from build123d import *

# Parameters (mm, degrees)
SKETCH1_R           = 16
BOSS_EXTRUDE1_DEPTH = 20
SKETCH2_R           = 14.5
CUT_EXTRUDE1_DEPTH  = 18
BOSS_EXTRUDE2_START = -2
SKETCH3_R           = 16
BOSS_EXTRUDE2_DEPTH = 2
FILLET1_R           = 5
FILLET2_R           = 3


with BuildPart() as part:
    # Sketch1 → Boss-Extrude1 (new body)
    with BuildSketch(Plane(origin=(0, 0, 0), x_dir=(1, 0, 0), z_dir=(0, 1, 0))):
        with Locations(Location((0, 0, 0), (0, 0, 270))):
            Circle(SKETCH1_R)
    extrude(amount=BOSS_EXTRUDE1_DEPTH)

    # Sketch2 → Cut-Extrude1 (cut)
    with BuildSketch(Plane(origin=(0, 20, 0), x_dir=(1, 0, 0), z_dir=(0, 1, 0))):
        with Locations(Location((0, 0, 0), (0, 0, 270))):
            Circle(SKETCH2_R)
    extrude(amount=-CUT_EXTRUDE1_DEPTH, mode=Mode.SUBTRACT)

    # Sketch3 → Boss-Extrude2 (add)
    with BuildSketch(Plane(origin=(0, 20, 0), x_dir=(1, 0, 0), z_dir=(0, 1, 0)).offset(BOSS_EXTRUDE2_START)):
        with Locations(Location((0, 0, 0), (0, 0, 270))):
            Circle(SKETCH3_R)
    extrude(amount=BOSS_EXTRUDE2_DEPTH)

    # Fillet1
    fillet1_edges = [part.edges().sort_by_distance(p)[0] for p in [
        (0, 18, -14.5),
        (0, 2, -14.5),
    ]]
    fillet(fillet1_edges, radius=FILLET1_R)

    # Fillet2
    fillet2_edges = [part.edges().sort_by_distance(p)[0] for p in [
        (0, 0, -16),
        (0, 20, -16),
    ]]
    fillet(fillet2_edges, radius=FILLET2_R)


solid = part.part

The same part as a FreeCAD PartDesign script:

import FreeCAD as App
import Part
import Sketcher
from FreeCAD import Vector
Q = App.Units.Quantity


def edges_at(feature, points):
    """Names of the edges that pass closest to the given points."""
    edges = feature.Shape.Edges
    near = lambda p: min(range(len(edges)), key=lambda i: edges[i].distToShape(Part.Vertex(*p))[0])
    return sorted({f"Edge{near(p) + 1}" for p in points})

doc = App.newDocument("Part")
body = doc.addObject("PartDesign::Body", "Body")

sketch1 = body.newObject("Sketcher::SketchObject", "Sketch")
sketch1.AttachmentSupport = (doc.getObject("XZ_Plane"), [""])
sketch1.MapMode = "FlatFace"
sketch1.addGeometry(Part.Circle(Vector(0, 0, 0), Vector(0, 0, 1), 16), False)
sketch1.addConstraint(Sketcher.Constraint("Coincident", 0, 3, -1, 1))
sketch1.addConstraint(Sketcher.Constraint("Diameter", 0, Q("32 mm")))
pad1 = body.newObject("PartDesign::Pad", "Pad")
pad1.Profile = sketch1
pad1.Length = 20
pad1.Reversed = True

sketch2 = body.newObject("Sketcher::SketchObject", "Sketch001")
sketch2.AttachmentSupport = (doc.getObject("XZ_Plane"), [""])
sketch2.MapMode = "FlatFace"
sketch2.AttachmentOffset = App.Placement(Vector(0, 0, -20), App.Rotation())
sketch2.addGeometry(Part.Circle(Vector(0, 0, 0), Vector(0, 0, 1), 14), False)
sketch2.addConstraint(Sketcher.Constraint("Coincident", 0, 3, -1, 1))
sketch2.addConstraint(Sketcher.Constraint("Diameter", 0, Q("29 mm")))
pocket1 = body.newObject("PartDesign::Pocket", "Pocket")
pocket1.Profile = sketch2
pocket1.Length = 18
pocket1.Reversed = True

sketch3 = body.newObject("Sketcher::SketchObject", "Sketch002")
sketch3.AttachmentSupport = (doc.getObject("XZ_Plane"), [""])
sketch3.MapMode = "FlatFace"
sketch3.AttachmentOffset = App.Placement(Vector(0, 0, -18), App.Rotation())
sketch3.addGeometry(Part.Circle(Vector(0, 0, 0), Vector(0, 0, 1), 16), False)
sketch3.addConstraint(Sketcher.Constraint("Coincident", 0, 3, -1, 1))
sketch3.addConstraint(Sketcher.Constraint("Diameter", 0, Q("32 mm")))
pad2 = body.newObject("PartDesign::Pad", "Pad001")
pad2.Profile = sketch3
pad2.Length = 2
pad2.Reversed = True
doc.recompute()

fillet = body.newObject("PartDesign::Fillet", "Fillet")
fillet.Base = (pad2, edges_at(pad2, [(0, 18, -14.5), (0, 2, -14.5)]))
fillet.Radius = 5
doc.recompute()

fillet2 = body.newObject("PartDesign::Fillet", "Fillet001")
fillet2.Base = (fillet, edges_at(fillet, [(0, 0, -16), (0, 20, -16)]))
fillet2.Radius = 3

doc.recompute()
